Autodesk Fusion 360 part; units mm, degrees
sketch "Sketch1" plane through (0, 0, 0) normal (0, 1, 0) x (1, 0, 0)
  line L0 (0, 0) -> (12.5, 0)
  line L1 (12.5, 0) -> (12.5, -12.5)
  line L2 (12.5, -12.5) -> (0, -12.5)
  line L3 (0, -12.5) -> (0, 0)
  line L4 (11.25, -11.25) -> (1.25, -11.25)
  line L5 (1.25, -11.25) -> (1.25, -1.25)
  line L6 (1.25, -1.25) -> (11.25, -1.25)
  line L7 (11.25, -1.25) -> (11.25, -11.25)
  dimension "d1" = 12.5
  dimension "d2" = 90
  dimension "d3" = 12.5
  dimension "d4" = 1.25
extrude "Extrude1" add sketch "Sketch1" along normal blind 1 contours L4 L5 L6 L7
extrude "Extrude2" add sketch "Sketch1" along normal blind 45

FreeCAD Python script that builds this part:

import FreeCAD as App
import Part
import Sketcher

doc = App.newDocument("Part")
body = doc.addObject("PartDesign::Body", "Body")

# Sketch on XZ plane
sketch1 = body.newObject("Sketcher::SketchObject", "Sketch")
sketch1.AttachmentSupport = (doc.getObject("XZ_Plane"), [""])
sketch1.MapMode = "FlatFace"
sketch1.addGeometry([
    Part.LineSegment(App.Vector(1.25, 11.25, 0), App.Vector(11.25, 11.25, 0)),
    Part.LineSegment(App.Vector(11.25, 11.25, 0), App.Vector(11.25, 1.25, 0)),
    Part.LineSegment(App.Vector(11.25, 1.25, 0), App.Vector(1.25, 1.25, 0)),
    Part.LineSegment(App.Vector(1.25, 1.25, 0), App.Vector(1.25, 11.25, 0)),
], False)
sketch1.addConstraint([
    Sketcher.Constraint("Coincident", 0, 2, 1, 1),
    Sketcher.Constraint("Coincident", 1, 2, 2, 1),
    Sketcher.Constraint("Coincident", 2, 2, 3, 1),
    Sketcher.Constraint("Coincident", 3, 2, 0, 1),
    Sketcher.Constraint("Horizontal", 0),
    Sketcher.Constraint("Vertical", 1),
    Sketcher.Constraint("Horizontal", 2),
    Sketcher.Constraint("Vertical", 3),
    Sketcher.Constraint("Equal", 2, 1),
    Sketcher.Constraint("DistanceX", 0, 1, 0, 2, 10.0),
    Sketcher.Constraint("DistanceY", -1, 1, 1, 2, 1.25),
    Sketcher.Constraint("DistanceX", -1, 1, 2, 2, 1.25),
])
pad1 = body.newObject("PartDesign::Pad", "Pad")
pad1.Profile = sketch1
pad1.Length = 1
pad1.Reversed = True

# Sketch on XZ plane
sketch2 = body.newObject("Sketcher::SketchObject", "Sketch001")
sketch2.AttachmentSupport = (doc.getObject("XZ_Plane"), [""])
sketch2.MapMode = "FlatFace"
sketch2.addGeometry([
    Part.LineSegment(App.Vector(12.5, 0, 0), App.Vector(0, 0, 0)),  # 0
    Part.LineSegment(App.Vector(0, 0, 0), App.Vector(0, 12.5, 0)),  # 1
    Part.LineSegment(App.Vector(0, 12.5, 0), App.Vector(12.5, 12.5, 0)),  # 2
    Part.LineSegment(App.Vector(12.5, 12.5, 0), App.Vector(12.5, 0, 0)),  # 3
    Part.LineSegment(App.Vector(11.25, 1.25, 0), App.Vector(11.25, 11.25, 0)),  # 4
    Part.LineSegment(App.Vector(11.25, 11.25, 0), App.Vector(1.25, 11.25, 0)),  # 5
    Part.LineSegment(App.Vector(1.25, 11.25, 0), App.Vector(1.25, 1.25, 0)),  # 6
    Part.LineSegment(App.Vector(1.25, 1.25, 0), App.Vector(11.25, 1.25, 0)),  # 7
], False)
sketch2.addConstraint([
    Sketcher.Constraint("Coincident", 0, 2, 1, 1),
    Sketcher.Constraint("Coincident", 1, 2, 2, 1),
    Sketcher.Constraint("Coincident", 2, 2, 3, 1),
    Sketcher.Constraint("Coincident", 3, 2, 0, 1),
    Sketcher.Constraint("Coincident", 4, 2, 5, 1),
    Sketcher.Constraint("Coincident", 5, 2, 6, 1),
    Sketcher.Constraint("Coincident", 6, 2, 7, 1),
    Sketcher.Constraint("Coincident", 7, 2, 4, 1),
    Sketcher.Constraint("Horizontal", 0),
    Sketcher.Constraint("Vertical", 1),
    Sketcher.Constraint("Horizontal", 2),
    Sketcher.Constraint("Vertical", 3),
    Sketcher.Constraint("Vertical", 4),
    Sketcher.Constraint("Horizontal", 5),
    Sketcher.Constraint("Vertical", 6),
    Sketcher.Constraint("Horizontal", 7),
    Sketcher.Constraint("Coincident", 0, 2, -1, 1),
    Sketcher.Constraint("Equal", 2, 1),
    Sketcher.Constraint("Equal", 7, 4),
    Sketcher.Constraint("DistanceX", 0, 2, 0, 1, 12.5),
    Sketcher.Constraint("DistanceX", 5, 2, 5, 1, 10.0),
    Sketcher.Constraint("DistanceX", -1, 1, 5, 2, 1.25),
    Sketcher.Constraint("DistanceY", -1, 1, 6, 2, 1.25),
])
pad2 = body.newObject("PartDesign::Pad", "Pad001")
pad2.Profile = sketch2
pad2.Length = 45
pad2.Reversed = True

doc.recompute()
